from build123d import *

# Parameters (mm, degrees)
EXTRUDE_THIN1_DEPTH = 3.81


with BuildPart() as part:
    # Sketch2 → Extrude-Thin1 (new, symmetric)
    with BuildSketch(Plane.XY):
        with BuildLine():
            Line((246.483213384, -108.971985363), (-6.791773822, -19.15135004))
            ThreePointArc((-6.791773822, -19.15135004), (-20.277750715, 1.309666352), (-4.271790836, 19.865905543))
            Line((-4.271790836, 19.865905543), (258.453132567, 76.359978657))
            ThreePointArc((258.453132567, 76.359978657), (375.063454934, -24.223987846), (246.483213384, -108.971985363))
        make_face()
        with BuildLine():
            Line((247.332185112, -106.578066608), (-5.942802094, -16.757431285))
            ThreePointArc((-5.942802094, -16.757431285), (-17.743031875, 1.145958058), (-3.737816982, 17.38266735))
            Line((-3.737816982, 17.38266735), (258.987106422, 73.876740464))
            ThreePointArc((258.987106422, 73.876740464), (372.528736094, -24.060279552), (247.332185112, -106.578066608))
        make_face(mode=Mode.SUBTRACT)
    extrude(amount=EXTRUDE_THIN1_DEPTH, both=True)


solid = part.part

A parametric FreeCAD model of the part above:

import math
import FreeCAD as App
import Part
import Sketcher
from FreeCAD import Vector
Q = App.Units.Quantity

doc = App.newDocument("Part")
body = doc.addObject("PartDesign::Body", "Body")

sketch1 = body.newObject("Sketcher::SketchObject", "Sketch")
sketch1.AttachmentSupport = (doc.getObject("XY_Plane"), [""])
sketch1.MapMode = "FlatFace"
sketch1.addGeometry(Part.LineSegment(Vector(-6.791774, -19.15135, 0), Vector(246.483213, -108.971985, 0)), False)
sketch1.addGeometry(Part.ArcOfCircle(Part.Circle(Vector(278.744139, -18.003073, 0), Vector(0, 0, 1), 96.52), math.radians(-109.52638), math.radians(102.135592)), False)
sketch1.addGeometry(Part.LineSegment(Vector(258.453133, 76.359979, 0), Vector(-4.271791, 19.865906, 0)), False)
sketch1.addGeometry(Part.ArcOfCircle(Part.Circle(Vector(0, 0, 0), Vector(0, 0, 1), 20.32), math.radians(102.135592), math.radians(250.47362)), False)
sketch1.addGeometry(Part.LineSegment(Vector(247.332185, -106.578067, 0), Vector(-5.942802, -16.757431, 0)), False)
sketch1.addGeometry(Part.ArcOfCircle(Part.Circle(Vector(0, 0, 0), Vector(0, 0, 1), 17.78), math.radians(102.135592), math.radians(250.47362)), False)
sketch1.addGeometry(Part.LineSegment(Vector(-3.737817, 17.382667, 0), Vector(258.987106, 73.87674, 0)), False)
sketch1.addGeometry(Part.ArcOfCircle(Part.Circle(Vector(278.744139, -18.003073, 0), Vector(0, 0, 1), 93.98), math.radians(-109.52638), math.radians(102.135592)), False)
sketch1.addConstraint(Sketcher.Constraint("Tangent", 0, 2, 1, 1))
sketch1.addConstraint(Sketcher.Constraint("Tangent", 1, 2, 2, 1))
sketch1.addConstraint(Sketcher.Constraint("Tangent", 2, 2, 3, 1))
sketch1.addConstraint(Sketcher.Constraint("Tangent", 3, 2, 0, 1))
sketch1.addConstraint(Sketcher.Constraint("Tangent", 4, 2, 5, 2))
sketch1.addConstraint(Sketcher.Constraint("Tangent", 5, 1, 6, 1))
sketch1.addConstraint(Sketcher.Constraint("Tangent", 6, 2, 7, 2))
sketch1.addConstraint(Sketcher.Constraint("Tangent", 7, 1, 4, 1))
sketch1.addConstraint(Sketcher.Constraint("Coincident", 3, 3, -1, 1))
sketch1.addConstraint(Sketcher.Constraint("Coincident", 5, 3, -1, 1))
sketch1.addConstraint(Sketcher.Constraint("Coincident", 7, 3, 1, 3))
sketch1.addConstraint(Sketcher.Constraint("Parallel", 0, 4))
sketch1.addConstraint(Sketcher.Constraint("Radius", 1, Q("3.8 in")))
sketch1.addConstraint(Sketcher.Constraint("Radius", 3, Q("0.8 in")))
sketch1.addConstraint(Sketcher.Constraint("Radius", 5, Q("0.7 in")))
sketch1.addConstraint(Sketcher.Constraint("DistanceX", -1, 1, 1, 3, 278.744139))
sketch1.addConstraint(Sketcher.Constraint("DistanceY", -1, 1, 1, 2, 76.359979))
pad1 = body.newObject("PartDesign::Pad", "Pad")
pad1.Profile = sketch1
pad1.Length = Q("0.3 in")
pad1.Midplane = True

doc.recompute()
